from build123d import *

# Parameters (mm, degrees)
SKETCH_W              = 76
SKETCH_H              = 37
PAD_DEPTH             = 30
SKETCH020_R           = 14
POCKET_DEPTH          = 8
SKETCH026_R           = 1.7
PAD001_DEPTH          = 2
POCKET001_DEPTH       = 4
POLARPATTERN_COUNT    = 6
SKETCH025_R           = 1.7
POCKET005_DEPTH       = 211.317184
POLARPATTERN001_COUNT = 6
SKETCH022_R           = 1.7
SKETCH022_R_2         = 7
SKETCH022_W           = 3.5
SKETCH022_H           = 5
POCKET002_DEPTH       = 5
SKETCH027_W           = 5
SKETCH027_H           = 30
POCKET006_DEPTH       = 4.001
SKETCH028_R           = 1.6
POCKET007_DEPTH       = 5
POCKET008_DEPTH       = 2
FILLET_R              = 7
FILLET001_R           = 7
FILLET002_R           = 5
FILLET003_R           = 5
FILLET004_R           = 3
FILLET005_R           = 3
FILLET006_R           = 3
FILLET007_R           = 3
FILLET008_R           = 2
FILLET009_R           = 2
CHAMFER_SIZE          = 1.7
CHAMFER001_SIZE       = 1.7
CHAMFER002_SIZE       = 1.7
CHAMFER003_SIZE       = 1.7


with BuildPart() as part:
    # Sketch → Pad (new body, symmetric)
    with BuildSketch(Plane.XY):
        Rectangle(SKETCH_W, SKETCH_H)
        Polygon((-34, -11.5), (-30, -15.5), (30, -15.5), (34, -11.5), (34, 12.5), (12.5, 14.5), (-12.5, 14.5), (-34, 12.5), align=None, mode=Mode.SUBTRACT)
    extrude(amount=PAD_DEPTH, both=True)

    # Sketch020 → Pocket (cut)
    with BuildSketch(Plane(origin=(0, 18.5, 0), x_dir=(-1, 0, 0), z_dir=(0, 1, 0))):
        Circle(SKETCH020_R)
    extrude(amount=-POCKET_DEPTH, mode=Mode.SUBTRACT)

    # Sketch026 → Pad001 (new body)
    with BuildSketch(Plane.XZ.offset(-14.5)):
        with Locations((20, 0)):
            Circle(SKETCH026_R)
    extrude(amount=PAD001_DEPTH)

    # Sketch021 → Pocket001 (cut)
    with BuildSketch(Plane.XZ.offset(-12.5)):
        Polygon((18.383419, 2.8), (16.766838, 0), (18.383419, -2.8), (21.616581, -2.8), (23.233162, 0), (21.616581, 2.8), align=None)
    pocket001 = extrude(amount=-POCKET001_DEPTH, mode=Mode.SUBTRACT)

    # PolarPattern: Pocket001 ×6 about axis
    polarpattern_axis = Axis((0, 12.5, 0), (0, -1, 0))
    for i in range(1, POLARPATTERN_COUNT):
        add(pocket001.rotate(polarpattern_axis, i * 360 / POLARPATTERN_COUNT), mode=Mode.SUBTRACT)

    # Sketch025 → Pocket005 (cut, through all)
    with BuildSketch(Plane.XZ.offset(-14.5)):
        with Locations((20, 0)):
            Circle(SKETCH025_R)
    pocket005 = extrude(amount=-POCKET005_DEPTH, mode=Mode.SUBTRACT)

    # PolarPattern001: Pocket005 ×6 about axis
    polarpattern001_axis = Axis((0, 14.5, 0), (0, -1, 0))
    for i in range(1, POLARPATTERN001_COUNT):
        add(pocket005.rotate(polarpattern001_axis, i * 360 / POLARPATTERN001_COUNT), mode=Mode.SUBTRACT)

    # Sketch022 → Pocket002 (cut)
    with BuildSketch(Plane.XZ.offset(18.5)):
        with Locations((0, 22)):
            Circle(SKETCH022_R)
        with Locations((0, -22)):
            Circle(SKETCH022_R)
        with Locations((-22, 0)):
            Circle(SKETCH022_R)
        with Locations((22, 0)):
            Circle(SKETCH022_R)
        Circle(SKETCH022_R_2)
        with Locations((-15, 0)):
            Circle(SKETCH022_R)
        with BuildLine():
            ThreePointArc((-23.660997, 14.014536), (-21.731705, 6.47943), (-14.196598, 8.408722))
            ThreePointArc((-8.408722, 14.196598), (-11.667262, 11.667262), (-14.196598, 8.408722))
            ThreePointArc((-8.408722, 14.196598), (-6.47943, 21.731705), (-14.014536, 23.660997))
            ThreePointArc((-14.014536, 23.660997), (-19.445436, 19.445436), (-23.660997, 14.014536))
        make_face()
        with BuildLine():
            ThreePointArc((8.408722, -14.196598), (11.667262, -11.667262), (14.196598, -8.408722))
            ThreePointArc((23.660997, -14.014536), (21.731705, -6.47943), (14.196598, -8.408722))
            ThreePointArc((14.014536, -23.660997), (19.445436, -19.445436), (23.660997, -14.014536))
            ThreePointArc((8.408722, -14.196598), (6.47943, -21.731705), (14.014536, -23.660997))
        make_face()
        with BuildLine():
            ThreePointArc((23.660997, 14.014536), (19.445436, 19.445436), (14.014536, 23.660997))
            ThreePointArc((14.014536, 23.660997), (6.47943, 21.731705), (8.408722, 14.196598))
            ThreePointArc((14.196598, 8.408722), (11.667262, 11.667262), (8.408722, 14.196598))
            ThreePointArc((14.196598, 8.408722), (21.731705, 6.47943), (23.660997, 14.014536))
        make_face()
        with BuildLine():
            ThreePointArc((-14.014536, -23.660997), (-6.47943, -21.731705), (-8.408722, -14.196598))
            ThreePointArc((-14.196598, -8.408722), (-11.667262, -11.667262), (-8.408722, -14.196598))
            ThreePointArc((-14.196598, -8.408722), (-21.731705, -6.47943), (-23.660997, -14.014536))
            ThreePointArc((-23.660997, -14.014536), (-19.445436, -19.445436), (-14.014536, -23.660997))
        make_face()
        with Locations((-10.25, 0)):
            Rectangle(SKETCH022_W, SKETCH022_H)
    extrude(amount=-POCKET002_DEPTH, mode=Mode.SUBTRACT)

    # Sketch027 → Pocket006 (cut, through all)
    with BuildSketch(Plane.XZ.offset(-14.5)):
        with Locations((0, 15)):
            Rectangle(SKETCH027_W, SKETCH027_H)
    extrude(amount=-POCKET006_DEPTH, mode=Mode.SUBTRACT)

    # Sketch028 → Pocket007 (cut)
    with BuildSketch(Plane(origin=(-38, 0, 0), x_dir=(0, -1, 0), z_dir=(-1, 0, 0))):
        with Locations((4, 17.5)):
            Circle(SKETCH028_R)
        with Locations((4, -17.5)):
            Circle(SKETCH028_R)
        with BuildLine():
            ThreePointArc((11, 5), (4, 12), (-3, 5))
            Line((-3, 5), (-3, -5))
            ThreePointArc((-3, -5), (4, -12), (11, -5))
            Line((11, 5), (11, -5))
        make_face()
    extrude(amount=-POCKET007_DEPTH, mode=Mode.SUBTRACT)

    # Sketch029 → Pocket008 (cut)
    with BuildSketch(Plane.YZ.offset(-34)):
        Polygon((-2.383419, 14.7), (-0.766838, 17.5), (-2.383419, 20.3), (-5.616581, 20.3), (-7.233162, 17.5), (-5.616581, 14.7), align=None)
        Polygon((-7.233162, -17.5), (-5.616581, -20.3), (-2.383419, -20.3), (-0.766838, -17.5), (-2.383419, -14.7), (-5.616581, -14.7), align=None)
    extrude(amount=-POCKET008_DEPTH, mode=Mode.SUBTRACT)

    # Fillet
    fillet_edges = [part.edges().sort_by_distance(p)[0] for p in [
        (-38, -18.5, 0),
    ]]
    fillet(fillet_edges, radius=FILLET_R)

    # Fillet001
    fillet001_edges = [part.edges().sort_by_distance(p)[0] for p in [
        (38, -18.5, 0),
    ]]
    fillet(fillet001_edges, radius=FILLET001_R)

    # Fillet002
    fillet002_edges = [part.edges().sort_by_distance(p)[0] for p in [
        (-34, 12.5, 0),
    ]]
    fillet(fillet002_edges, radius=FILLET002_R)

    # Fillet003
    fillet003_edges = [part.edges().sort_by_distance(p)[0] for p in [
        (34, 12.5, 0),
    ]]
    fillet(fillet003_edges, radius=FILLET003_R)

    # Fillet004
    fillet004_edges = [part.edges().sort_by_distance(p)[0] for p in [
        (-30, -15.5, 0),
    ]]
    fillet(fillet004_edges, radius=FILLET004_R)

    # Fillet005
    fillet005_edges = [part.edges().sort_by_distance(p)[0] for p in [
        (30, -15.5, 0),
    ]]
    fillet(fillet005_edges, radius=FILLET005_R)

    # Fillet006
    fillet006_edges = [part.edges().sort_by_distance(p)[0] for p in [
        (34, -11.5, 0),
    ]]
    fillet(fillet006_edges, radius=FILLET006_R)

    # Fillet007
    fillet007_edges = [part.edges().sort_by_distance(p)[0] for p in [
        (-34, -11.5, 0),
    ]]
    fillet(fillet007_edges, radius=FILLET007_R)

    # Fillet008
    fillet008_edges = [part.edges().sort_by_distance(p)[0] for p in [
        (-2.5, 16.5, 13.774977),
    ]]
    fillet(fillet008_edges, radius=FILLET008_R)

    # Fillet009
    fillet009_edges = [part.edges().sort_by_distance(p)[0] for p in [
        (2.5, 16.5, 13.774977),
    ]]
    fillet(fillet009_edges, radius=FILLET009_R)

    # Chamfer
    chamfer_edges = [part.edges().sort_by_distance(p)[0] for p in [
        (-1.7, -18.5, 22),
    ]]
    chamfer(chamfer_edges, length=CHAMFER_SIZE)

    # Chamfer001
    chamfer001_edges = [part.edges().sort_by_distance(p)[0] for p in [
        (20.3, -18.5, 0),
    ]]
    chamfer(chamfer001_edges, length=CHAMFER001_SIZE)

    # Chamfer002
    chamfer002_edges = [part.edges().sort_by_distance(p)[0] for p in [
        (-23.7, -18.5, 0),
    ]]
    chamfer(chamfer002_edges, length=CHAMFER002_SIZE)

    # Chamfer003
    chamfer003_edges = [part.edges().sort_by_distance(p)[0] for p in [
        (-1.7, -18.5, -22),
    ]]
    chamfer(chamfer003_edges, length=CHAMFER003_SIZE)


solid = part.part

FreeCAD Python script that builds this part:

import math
import FreeCAD as App
import Part
import Sketcher
from FreeCAD import Vector
Q = App.Units.Quantity


def edges_at(feature, points):
    """Names of the edges that pass closest to the given points."""
    edges = feature.Shape.Edges
    near = lambda p: min(range(len(edges)), key=lambda i: edges[i].distToShape(Part.Vertex(*p))[0])
    return sorted({f"Edge{near(p) + 1}" for p in points})


def add_polygon(sketch, points):
    """Adds a closed chain of lines whose ends are joined by coincident constraints."""
    first, n = sketch.GeometryCount, len(points)
    for a, b in zip(points, points[1:] + points[:1]):
        sketch.addGeometry(Part.LineSegment(App.Vector(*a, 0), App.Vector(*b, 0)), False)
    for i in range(n):
        sketch.addConstraint(Sketcher.Constraint("Coincident", first + i, 2, first + (i + 1) % n, 1))

doc = App.newDocument("Part")
body = doc.addObject("PartDesign::Body", "Body")

sketch1 = body.newObject("Sketcher::SketchObject", "Sketch")
sketch1.AttachmentSupport = (doc.getObject("XY_Plane"), [""])
sketch1.MapMode = "FlatFace"
add_polygon(sketch1, [(-38, 18.5), (-38, -18.5), (38, -18.5), (38, 18.5)])
add_polygon(sketch1, [(-30, -15.5), (-34, -11.5), (-34, 12.5), (-12.5, 14.5), (12.5, 14.5), (34, 12.5), (34, -11.5), (30, -15.5)])
sketch1.addConstraint([
    Sketcher.Constraint("Vertical", 0),
    Sketcher.Constraint("Horizontal", 1),
    Sketcher.Constraint("Vertical", 2),
    Sketcher.Constraint("Horizontal", 3),
    Sketcher.Constraint("Vertical", 5),
    Sketcher.Constraint("Horizontal", 7),
    Sketcher.Constraint("Vertical", 9),
    Sketcher.Constraint("Horizontal", 11),
    Sketcher.Constraint("Symmetric", 0, 2, 2, 2, -1, 1),
    Sketcher.Constraint("Symmetric", 5, 2, 8, 2, -2),
    Sketcher.Constraint("Perpendicular", 4, 10),
    Sketcher.Constraint("Horizontal", 4, 2, 9, 2),
    Sketcher.Constraint("Equal", 6, 8),
    Sketcher.Constraint("Equal", 4, 10),
    Sketcher.Constraint("DistanceX", 1, 1, 1, 2, Q("76 mm")),
    Sketcher.Constraint("DistanceX", 7, 1, 7, 2, Q("25 mm")),
    Sketcher.Constraint("DistanceX", 11, 2, 11, 1, Q("60 mm")),
    Sketcher.Constraint("DistanceY", 0, 2, 0, 1, Q("37 mm")),
    Sketcher.Constraint("DistanceY", 5, 1, 5, 2, Q("24 mm")),
    Sketcher.Constraint("DistanceX", 4, 2, -1, 1, Q("34 mm")),
    Sketcher.Constraint("DistanceY", 0, 2, 4, 2, Q("7 mm")),
    Sketcher.Constraint("DistanceY", 5, 2, 6, 2, Q("2 mm")),
])
pad1 = body.newObject("PartDesign::Pad", "Pad")
pad1.Profile = sketch1
pad1.Length = 60
pad1.Midplane = True

sketch2 = body.newObject("Sketcher::SketchObject", "Sketch001")
sketch2.AttachmentSupport = (doc.getObject("XZ_Plane"), [""])
sketch2.MapMode = "FlatFace"
sketch2.AttachmentOffset = App.Placement(Vector(0, 0, -18.5), App.Rotation())
sketch2.addGeometry(Part.Circle(Vector(0, 0, 0), Vector(0, 0, 1), 14), False)
sketch2.addConstraint([
    Sketcher.Constraint("Coincident", 0, 3, -1, 1),
    Sketcher.Constraint("Diameter", 0, Q("28 mm")),
])
pocket1 = body.newObject("PartDesign::Pocket", "Pocket")
pocket1.Profile = sketch2
pocket1.Length = 8
pocket1.Reversed = True

sketch3 = body.newObject("Sketcher::SketchObject", "Sketch002")
sketch3.AttachmentSupport = (doc.getObject("XZ_Plane"), [""])
sketch3.MapMode = "FlatFace"
sketch3.AttachmentOffset = App.Placement(Vector(0, 0, -14.5), App.Rotation())
sketch3.addGeometry(Part.Circle(Vector(20, 0, 0), Vector(0, 0, 1), 1.7), False)
sketch3.addConstraint([
    Sketcher.Constraint("PointOnObject", 0, 3, -1),
    Sketcher.Constraint("Diameter", 0, Q("3.4 mm")),
    Sketcher.Constraint("DistanceX", -1, 1, 0, 3, Q("20 mm")),
])
pad2 = body.newObject("PartDesign::Pad", "Pad001")
pad2.Profile = sketch3
pad2.Length = 2

sketch4 = body.newObject("Sketcher::SketchObject", "Sketch003")
sketch4.AttachmentSupport = (doc.getObject("XZ_Plane"), [""])
sketch4.MapMode = "FlatFace"
sketch4.AttachmentOffset = App.Placement(Vector(0, 0, -12.5), App.Rotation())
add_polygon(sketch4, [(18.383419, 2.8), (16.766838, 0), (18.383419, -2.8), (21.616581, -2.8), (23.233162, 0), (21.616581, 2.8)])
sketch4.addConstraint([
    Sketcher.Constraint("Horizontal", 2),
    Sketcher.Constraint("Horizontal", 5),
    Sketcher.Constraint("Symmetric", 2, 2, 4, 2, -1),
    Sketcher.Constraint("PointOnObject", 0, 2, -1),
    Sketcher.Constraint("PointOnObject", 3, 2, -1),
    Sketcher.Constraint("Parallel", 0, 3),
    Sketcher.Constraint("Parallel", 1, 4),
    Sketcher.Constraint("Angle", 0, Q("-120.000004 deg")),
    Sketcher.Constraint("DistanceY", 1, 2, -1, 1, Q("2.8 mm")),
    Sketcher.Constraint("DistanceX", 2, 1, 2, 2, Q("3.233162 mm")),
    Sketcher.Constraint("DistanceX", -1, 1, 0, 2, Q("16.766838 mm")),
])
pocket2 = body.newObject("PartDesign::Pocket", "Pocket001")
pocket2.Profile = sketch4
pocket2.Length = 4
doc.recompute()

polarpattern = body.newObject("PartDesign::PolarPattern", "PolarPattern")
polarpattern.Originals = [pocket2]
polarpattern.Axis = (doc.getObject("Y_Axis"), [""])
polarpattern.Angle = 360
polarpattern.Occurrences = 6
body.Tip = polarpattern

sketch5 = body.newObject("Sketcher::SketchObject", "Sketch004")
sketch5.AttachmentSupport = (doc.getObject("XZ_Plane"), [""])
sketch5.MapMode = "FlatFace"
sketch5.AttachmentOffset = App.Placement(Vector(0, 0, -14.5), App.Rotation())
sketch5.addGeometry(Part.Circle(Vector(20, 0, 0), Vector(0, 0, 1), 1.7), False)
sketch5.addConstraint([
    Sketcher.Constraint("PointOnObject", 0, 3, -1),
    Sketcher.Constraint("Diameter", 0, Q("3.4 mm")),
    Sketcher.Constraint("DistanceX", -1, 1, 0, 3, Q("20 mm")),
])
pocket3 = body.newObject("PartDesign::Pocket", "Pocket002")
pocket3.Profile = sketch5
pocket3.Type = "ThroughAll"
doc.recompute()

polarpattern2 = body.newObject("PartDesign::PolarPattern", "PolarPattern001")
polarpattern2.Originals = [pocket3]
polarpattern2.Axis = (doc.getObject("Y_Axis"), [""])
polarpattern2.Angle = 360
polarpattern2.Occurrences = 6
body.Tip = polarpattern2

sketch6 = body.newObject("Sketcher::SketchObject", "Sketch005")
sketch6.AttachmentSupport = (doc.getObject("XZ_Plane"), [""])
sketch6.MapMode = "FlatFace"
sketch6.AttachmentOffset = App.Placement(Vector(0, 0, 18.5), App.Rotation())
sketch6.addGeometry(Part.Circle(Vector(0, 22, 0), Vector(0, 0, 1), 1.7), False)
sketch6.addGeometry(Part.Circle(Vector(0, -22, 0), Vector(0, 0, 1), 1.7), False)
sketch6.addGeometry(Part.Circle(Vector(-22, 0, 0), Vector(0, 0, 1), 1.7), False)
sketch6.addGeometry(Part.Circle(Vector(22, 0, 0), Vector(0, 0, 1), 1.7), False)
sketch6.addGeometry(Part.Circle(Vector(0, 0, 0), Vector(0, 0, 1), 7), False)
sketch6.addGeometry(Part.Circle(Vector(-15, 0, 0), Vector(0, 0, 1), 1.7), False)
sketch6.addGeometry(Part.ArcOfCircle(Part.Circle(Vector(-18.928797, 11.211629, 0), Vector(0, 0, 1), 5.5), math.radians(149.361517), math.radians(329.361513)), False)
sketch6.addGeometry(Part.ArcOfCircle(Part.Circle(Vector(-0.000003, 0.000003, 0), Vector(0, 0, 1), 16.499996), math.radians(120.638485), math.radians(149.361515)), False)
sketch6.addGeometry(Part.ArcOfCircle(Part.Circle(Vector(-11.211629, 18.928797, 0), Vector(0, 0, 1), 5.5), math.radians(-59.361513), math.radians(120.638483)), False)
sketch6.addGeometry(Part.ArcOfCircle(Part.Circle(Vector(0.000015, -0.000015, 0), Vector(0, 0, 1), 27.50002), math.radians(120.638498), math.radians(149.361502)), False)
sketch6.addGeometry(Part.ArcOfCircle(Part.Circle(Vector(0.000003, -0.000003, 0), Vector(0, 0, 1), 16.499996), math.radians(-59.361515), math.radians(-30.638485)), False)
sketch6.addGeometry(Part.ArcOfCircle(Part.Circle(Vector(11.211629, -18.928797, 0), Vector(0, 0, 1), 5.5), math.radians(120.638487), math.radians(300.638483)), False)
sketch6.addGeometry(Part.ArcOfCircle(Part.Circle(Vector(-0.000015, 0.000015, 0), Vector(0, 0, 1), 27.50002), math.radians(-59.361502), math.radians(-30.638498)), False)
sketch6.addGeometry(Part.ArcOfCircle(Part.Circle(Vector(18.928797, -11.211629, 0), Vector(0, 0, 1), 5.5), math.radians(-30.638483), math.radians(149.361513)), False)
sketch6.addGeometry(Part.ArcOfCircle(Part.Circle(Vector(-0.000015, -0.000015, 0), Vector(0, 0, 1), 27.50002), math.radians(30.638498), math.radians(59.361502)), False)
sketch6.addGeometry(Part.ArcOfCircle(Part.Circle(Vector(11.211629, 18.928797, 0), Vector(0, 0, 1), 5.5), math.radians(59.361517), math.radians(239.361513)), False)
sketch6.addGeometry(Part.ArcOfCircle(Part.Circle(Vector(0.000003, 0.000003, 0), Vector(0, 0, 1), 16.499996), math.radians(30.638485), math.radians(59.361515)), False)
sketch6.addGeometry(Part.ArcOfCircle(Part.Circle(Vector(18.928797, 11.211629, 0), Vector(0, 0, 1), 5.5), math.radians(-149.361513), math.radians(30.638483)), False)
sketch6.addGeometry(Part.ArcOfCircle(Part.Circle(Vector(-11.211629, -18.928797, 0), Vector(0, 0, 1), 5.5), math.radians(-120.638483), math.radians(59.361513)), False)
sketch6.addGeometry(Part.ArcOfCircle(Part.Circle(Vector(-0.000003, -0.000003, 0), Vector(0, 0, 1), 16.499996), math.radians(-149.361515), math.radians(-120.638485)), False)
sketch6.addGeometry(Part.ArcOfCircle(Part.Circle(Vector(-18.928797, -11.211629, 0), Vector(0, 0, 1), 5.5), math.radians(30.638487), math.radians(210.638483)), False)
sketch6.addGeometry(Part.ArcOfCircle(Part.Circle(Vector(0.000015, 0.000015, 0), Vector(0, 0, 1), 27.50002), math.radians(-149.361502), math.radians(-120.638498)), False)
add_polygon(sketch6, [(-12, 2.5), (-12, -2.5), (-8.5, -2.5), (-8.5, 2.5)])
sketch6.addConstraint([
    Sketcher.Constraint("Tangent", 6, 2, 7, 2),
    Sketcher.Constraint("Tangent", 7, 1, 8, 1),
    Sketcher.Constraint("Tangent", 8, 2, 9, 1),
    Sketcher.Constraint("Tangent", 9, 2, 6, 1),
    Sketcher.Constraint("Tangent", 10, 1, 11, 1),
    Sketcher.Constraint("Tangent", 11, 2, 12, 1),
    Sketcher.Constraint("Tangent", 12, 2, 13, 1),
    Sketcher.Constraint("Tangent", 13, 2, 10, 2),
    Sketcher.Constraint("Tangent", 14, 2, 15, 1),
    Sketcher.Constraint("Tangent", 15, 2, 16, 2),
    Sketcher.Constraint("Tangent", 16, 1, 17, 1),
    Sketcher.Constraint("Tangent", 17, 2, 14, 1),
    Sketcher.Constraint("Tangent", 18, 2, 19, 2),
    Sketcher.Constraint("Tangent", 19, 1, 20, 1),
    Sketcher.Constraint("Tangent", 20, 2, 21, 1),
    Sketcher.Constraint("Tangent", 21, 2, 18, 1),
    Sketcher.Constraint("Vertical", 22),
    Sketcher.Constraint("Horizontal", 23),
    Sketcher.Constraint("Vertical", 24),
    Sketcher.Constraint("Horizontal", 25),
    Sketcher.Constraint("Coincident", 4, 3, -1, 1),
    Sketcher.Constraint("Coincident", 7, 3, -1, 1),
    Sketcher.Constraint("Coincident", 10, 3, -1, 1),
    Sketcher.Constraint("Coincident", 16, 3, -1, 1),
    Sketcher.Constraint("Coincident", 19, 3, -1, 1),
    Sketcher.Constraint("Equal", 0, 1),
    Sketcher.Constraint("Equal", 1, 2),
    Sketcher.Constraint("Equal", 2, 3),
    Sketcher.Constraint("Equal", 3, 5),
    Sketcher.Constraint("Equal", 6, 8),
    Sketcher.Constraint("Equal", 7, 10),
    Sketcher.Constraint("Equal", 8, 11),
    Sketcher.Constraint("Equal", 9, 12),
    Sketcher.Constraint("Equal", 11, 13),
    Sketcher.Constraint("Equal", 12, 14),
    Sketcher.Constraint("Equal", 13, 15),
    Sketcher.Constraint("Equal", 10, 16),
    Sketcher.Constraint("Equal", 15, 17),
    Sketcher.Constraint("Equal", 17, 18),
    Sketcher.Constraint("Equal", 16, 19),
    Sketcher.Constraint("Equal", 18, 20),
    Sketcher.Constraint("Equal", 14, 21),
    Sketcher.Constraint("Symmetric", 0, 3, 1, 3, -1, 1),
    Sketcher.Constraint("Symmetric", 2, 3, 3, 3, -1, 1),
    Sketcher.Constraint("PointOnObject", 0, 3, -2),
    Sketcher.Constraint("PointOnObject", 2, 3, -1),
    Sketcher.Constraint("PointOnObject", 5, 3, -1),
    Sketcher.Constraint("Horizontal", 8, 3, 15, 3),
    Sketcher.Constraint("Horizontal", 6, 3, 17, 3),
    Sketcher.Constraint("Horizontal", 11, 3, 18, 3),
    Sketcher.Constraint("Horizontal", 13, 3, 20, 3),
    Sketcher.Constraint("Vertical", 11, 3, 15, 3),
    Sketcher.Constraint("Vertical", 13, 3, 17, 3),
    Sketcher.Constraint("Diameter", 4, Q("14 mm")),
    Sketcher.Constraint("Diameter", 0, Q("3.4 mm")),
    Sketcher.Constraint("Radius", 6, Q("5.5 mm")),
    Sketcher.Constraint("DistanceY", 22, 2, 22, 1, Q("5 mm")),
    Sketcher.Constraint("DistanceX", 23, 1, 23, 2, Q("3.5 mm")),
    Sketcher.Constraint("DistanceY", -1, 1, 0, 3, Q("22 mm")),
    Sketcher.Constraint("DistanceX", 2, 3, -1, 1, Q("22 mm")),
    Sketcher.Constraint("DistanceX", 5, 3, -1, 1, Q("15 mm")),
    Sketcher.Constraint("DistanceX", 22, 2, -1, 1, Q("12 mm")),
    Sketcher.Constraint("DistanceY", 22, 2, -1, 1, Q("2.5 mm")),
    Sketcher.Constraint("Radius", 9, Q("27.50002 mm")),
    Sketcher.Constraint("Radius", 7, Q("16.499996 mm")),
    Sketcher.Constraint("DistanceX", 6, 2, -1, 1, Q("14.196598 mm")),
    Sketcher.Constraint("DistanceY", -1, 1, 15, 2, Q("14.196598 mm")),
])
pocket4 = body.newObject("PartDesign::Pocket", "Pocket003")
pocket4.Profile = sketch6
pocket4.Length = 5

sketch7 = body.newObject("Sketcher::SketchObject", "Sketch006")
sketch7.AttachmentSupport = (doc.getObject("XZ_Plane"), [""])
sketch7.MapMode = "FlatFace"
sketch7.AttachmentOffset = App.Placement(Vector(0, 0, -14.5), App.Rotation())
add_polygon(sketch7, [(-2.5, 30), (-2.5, 0), (2.5, 0), (2.5, 30)])
sketch7.addConstraint([
    Sketcher.Constraint("Vertical", 0),
    Sketcher.Constraint("Horizontal", 1),
    Sketcher.Constraint("Vertical", 2),
    Sketcher.Constraint("Horizontal", 3),
    Sketcher.Constraint("Symmetric", 0, 2, 1, 2, -1, 1),
    Sketcher.Constraint("DistanceX", 1, 1, 1, 2, Q("5 mm")),
    Sketcher.Constraint("DistanceY", 0, 2, 0, 1, Q("30 mm")),
])
pocket5 = body.newObject("PartDesign::Pocket", "Pocket004")
pocket5.Profile = sketch7
pocket5.Type = "ThroughAll"

sketch8 = body.newObject("Sketcher::SketchObject", "Sketch007")
sketch8.AttachmentSupport = (doc.getObject("YZ_Plane"), [""])
sketch8.MapMode = "FlatFace"
sketch8.AttachmentOffset = App.Placement(Vector(0, 0, -38), App.Rotation())
sketch8.addGeometry([
    Part.Circle(Vector(-4, 17.5, 0), Vector(0, 0, 1), 1.6),
    Part.Circle(Vector(-4, -17.5, 0), Vector(0, 0, 1), 1.6),
    Part.ArcOfCircle(Part.Circle(Vector(-4, 5, 0), Vector(0, 0, 1), 7), math.radians(0), math.radians(180)),
    Part.LineSegment(Vector(3, 5, 0), Vector(3, -5, 0)),
    Part.ArcOfCircle(Part.Circle(Vector(-4, -5, 0), Vector(0, 0, 1), 7), math.radians(180), math.radians(360)),
    Part.LineSegment(Vector(-11, -5, 0), Vector(-11, 5, 0)),
], False)
sketch8.addConstraint([
    Sketcher.Constraint("Tangent", 2, 1, 3, 1),
    Sketcher.Constraint("Tangent", 3, 2, 4, 2),
    Sketcher.Constraint("Tangent", 4, 1, 5, 1),
    Sketcher.Constraint("Tangent", 5, 2, 2, 2),
    Sketcher.Constraint("Vertical", 3),
    Sketcher.Constraint("Vertical", 5),
    Sketcher.Constraint("Equal", 0, 1),
    Sketcher.Constraint("Symmetric", 0, 3, 1, 3, -1),
    Sketcher.Constraint("Vertical", 1, 3, 2, 3),
    Sketcher.Constraint("Radius", 2, Q("7 mm")),
    Sketcher.Constraint("Diameter", 0, Q("3.2 mm")),
    Sketcher.Constraint("DistanceY", 3, 2, 3, 1, Q("10 mm")),
    Sketcher.Constraint("DistanceX", 0, 3, -1, 1, Q("4 mm")),
    Sketcher.Constraint("DistanceY", -1, 1, 2, 3, Q("5 mm")),
    Sketcher.Constraint("DistanceY", 1, 3, 0, 3, Q("35 mm")),
])
pocket6 = body.newObject("PartDesign::Pocket", "Pocket005")
pocket6.Profile = sketch8
pocket6.Length = 5
pocket6.Reversed = True

sketch9 = body.newObject("Sketcher::SketchObject", "Sketch008")
sketch9.AttachmentSupport = (doc.getObject("YZ_Plane"), [""])
sketch9.MapMode = "FlatFace"
sketch9.AttachmentOffset = App.Placement(Vector(0, 0, -34), App.Rotation())
add_polygon(sketch9, [(-2.383419, 14.7), (-0.766838, 17.5), (-2.383419, 20.3), (-5.616581, 20.3), (-7.233162, 17.5), (-5.616581, 14.7)])
add_polygon(sketch9, [(-7.233162, -17.5), (-5.616581, -20.3), (-2.383419, -20.3), (-0.766838, -17.5), (-2.383419, -14.7), (-5.616581, -14.7)])
sketch9.addConstraint([
    Sketcher.Constraint("Horizontal", 2),
    Sketcher.Constraint("Horizontal", 5),
    Sketcher.Constraint("Horizontal", 7),
    Sketcher.Constraint("Horizontal", 10),
    Sketcher.Constraint("Symmetric", 2, 2, 6, 2, -1),
    Sketcher.Constraint("Symmetric", 0, 2, 8, 2, -1),
    Sketcher.Constraint("Symmetric", 5, 2, 9, 2, -1),
    Sketcher.Constraint("Symmetric", 3, 2, 11, 2, -1),
    Sketcher.Constraint("Parallel", 0, 3),
    Sketcher.Constraint("Parallel", 1, 4),
    Sketcher.Constraint("Parallel", 4, 6),
    Sketcher.Constraint("Parallel", 3, 8),
    Sketcher.Constraint("Parallel", 8, 11),
    Sketcher.Constraint("Horizontal", 0, 2, 3, 2),
    Sketcher.Constraint("Vertical", 2, 2, 4, 2),
    Sketcher.Constraint("Angle", 0, Q("59.999996 deg")),
    Sketcher.Constraint("DistanceY", 6, 2, 4, 2, Q("35 mm")),
    Sketcher.Constraint("DistanceY", -1, 1, 1, 2, Q("20.3 mm")),
    Sketcher.Constraint("DistanceX", 2, 2, 2, 1, Q("3.233162 mm")),
    Sketcher.Constraint("DistanceX", 0, 2, -1, 1, Q("0.766838 mm")),
])
pocket7 = body.newObject("PartDesign::Pocket", "Pocket006")
pocket7.Profile = sketch9
pocket7.Length = 2
doc.recompute()

fillet = body.newObject("PartDesign::Fillet", "Fillet")
fillet.Base = (pocket7, edges_at(pocket7, [(-38, -18.5, 0)]))
fillet.Radius = 7
doc.recompute()

fillet2 = body.newObject("PartDesign::Fillet", "Fillet001")
fillet2.Base = (fillet, edges_at(fillet, [(38, -18.5, 0)]))
fillet2.Radius = 7
doc.recompute()

fillet3 = body.newObject("PartDesign::Fillet", "Fillet002")
fillet3.Base = (fillet2, edges_at(fillet2, [(-34, 12.5, 0)]))
fillet3.Radius = 5
doc.recompute()

fillet4 = body.newObject("PartDesign::Fillet", "Fillet003")
fillet4.Base = (fillet3, edges_at(fillet3, [(34, 12.5, 0)]))
fillet4.Radius = 5
doc.recompute()

fillet5 = body.newObject("PartDesign::Fillet", "Fillet004")
fillet5.Base = (fillet4, edges_at(fillet4, [(-30, -15.5, 0)]))
fillet5.Radius = 3
doc.recompute()

fillet6 = body.newObject("PartDesign::Fillet", "Fillet005")
fillet6.Base = (fillet5, edges_at(fillet5, [(30, -15.5, 0)]))
fillet6.Radius = 3
doc.recompute()

fillet7 = body.newObject("PartDesign::Fillet", "Fillet006")
fillet7.Base = (fillet6, edges_at(fillet6, [(34, -11.5, 0)]))
fillet7.Radius = 3
doc.recompute()

fillet8 = body.newObject("PartDesign::Fillet", "Fillet007")
fillet8.Base = (fillet7, edges_at(fillet7, [(-34, -11.5, 0)]))
fillet8.Radius = 3
doc.recompute()

fillet9 = body.newObject("PartDesign::Fillet", "Fillet008")
fillet9.Base = (fillet8, edges_at(fillet8, [(-2.5, 16.5, 13.775)]))
fillet9.Radius = 2
doc.recompute()

fillet10 = body.newObject("PartDesign::Fillet", "Fillet009")
fillet10.Base = (fillet9, edges_at(fillet9, [(2.5, 16.5, 13.775)]))
fillet10.Radius = 2
doc.recompute()

chamfer = body.newObject("PartDesign::Chamfer", "Chamfer")
chamfer.Base = (fillet10, edges_at(fillet10, [(-1.7, -18.5, 22)]))
chamfer.Size = 1.7
doc.recompute()

chamfer2 = body.newObject("PartDesign::Chamfer", "Chamfer001")
chamfer2.Base = (chamfer, edges_at(chamfer, [(20.3, -18.5, 0)]))
chamfer2.Size = 1.7
doc.recompute()

chamfer3 = body.newObject("PartDesign::Chamfer", "Chamfer002")
chamfer3.Base = (chamfer2, edges_at(chamfer2, [(-23.7, -18.5, 0)]))
chamfer3.Size = 1.7
doc.recompute()

chamfer4 = body.newObject("PartDesign::Chamfer", "Chamfer003")
chamfer4.Base = (chamfer3, edges_at(chamfer3, [(-1.7, -18.5, -22)]))
chamfer4.Size = 1.7

doc.recompute()
